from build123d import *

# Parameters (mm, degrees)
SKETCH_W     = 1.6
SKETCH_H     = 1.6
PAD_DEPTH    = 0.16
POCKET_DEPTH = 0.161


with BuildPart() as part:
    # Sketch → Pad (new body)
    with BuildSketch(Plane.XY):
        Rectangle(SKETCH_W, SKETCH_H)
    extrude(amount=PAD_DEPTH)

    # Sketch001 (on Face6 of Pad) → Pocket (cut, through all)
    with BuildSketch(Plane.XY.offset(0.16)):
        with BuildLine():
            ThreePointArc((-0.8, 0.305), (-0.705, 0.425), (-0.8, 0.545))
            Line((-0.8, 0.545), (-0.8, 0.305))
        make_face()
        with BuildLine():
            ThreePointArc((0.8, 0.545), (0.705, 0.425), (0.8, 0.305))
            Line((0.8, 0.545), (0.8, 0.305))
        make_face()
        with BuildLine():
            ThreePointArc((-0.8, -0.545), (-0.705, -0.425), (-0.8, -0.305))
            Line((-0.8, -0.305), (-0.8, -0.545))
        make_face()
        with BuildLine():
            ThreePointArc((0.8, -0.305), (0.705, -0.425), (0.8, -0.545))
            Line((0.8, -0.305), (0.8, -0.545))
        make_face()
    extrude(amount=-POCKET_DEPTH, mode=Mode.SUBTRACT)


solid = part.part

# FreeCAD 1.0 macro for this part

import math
import FreeCAD as App
import Part
import Sketcher
from FreeCAD import Vector
Q = App.Units.Quantity

doc = App.newDocument("Part")
body = doc.addObject("PartDesign::Body", "Body")

# Sketch on XY plane
sketch1 = body.newObject("Sketcher::SketchObject", "Sketch")
sketch1.AttachmentSupport = (doc.getObject("XY_Plane"), [""])
sketch1.MapMode = "FlatFace"
sketch1.addGeometry([
    Part.LineSegment(Vector(-0.8, 0.8, 0), Vector(-0.8, -0.8, 0)),
    Part.LineSegment(Vector(-0.8, -0.8, 0), Vector(0.8, -0.8, 0)),
    Part.LineSegment(Vector(0.8, -0.8, 0), Vector(0.8, 0.8, 0)),
    Part.LineSegment(Vector(0.8, 0.8, 0), Vector(-0.8, 0.8, 0)),
], False)
sketch1.addConstraint([
    Sketcher.Constraint("Coincident", 0, 2, 1, 1),
    Sketcher.Constraint("Coincident", 1, 2, 2, 1),
    Sketcher.Constraint("Coincident", 2, 2, 3, 1),
    Sketcher.Constraint("Coincident", 3, 2, 0, 1),
    Sketcher.Constraint("Vertical", 0),
    Sketcher.Constraint("Horizontal", 1),
    Sketcher.Constraint("Vertical", 2),
    Sketcher.Constraint("Horizontal", 3),
    Sketcher.Constraint("Symmetric", 0, 2, 2, 2, -1, 1),
    Sketcher.Constraint("Equal", 3, 0),
    Sketcher.Constraint("DistanceX", 1, 1, 1, 2, Q("1.6 mm")),
])
pad1 = body.newObject("PartDesign::Pad", "Pad")
pad1.Profile = sketch1
pad1.Length = 0.16

# Sketch on XY plane
sketch2 = body.newObject("Sketcher::SketchObject", "Sketch001")
sketch2.AttachmentSupport = (doc.getObject("XY_Plane"), [""])
sketch2.MapMode = "FlatFace"
sketch2.AttachmentOffset = App.Placement(Vector(0, 0, 0.16), App.Rotation())
sketch2.addGeometry([
    Part.ArcOfCircle(Part.Circle(Vector(-0.83, 0.42, 0), Vector(0, 0, 1), 0.12), math.radians(-77), math.radians(77)),  # 0
    Part.LineSegment(Vector(-0.8, 0.55, 0), Vector(-0.8, 0.3, 0)),  # 1
    Part.ArcOfCircle(Part.Circle(Vector(0.83, 0.42, 0), Vector(0, 0, 1), 0.12), math.radians(103), math.radians(257)),  # 2
    Part.LineSegment(Vector(0.8, 0.3, 0), Vector(0.8, 0.55, 0)),  # 3
    Part.ArcOfCircle(Part.Circle(Vector(-0.83, -0.42, 0), Vector(0, 0, 1), 0.12), math.radians(-77), math.radians(77)),  # 4
    Part.LineSegment(Vector(-0.8, -0.3, 0), Vector(-0.8, -0.55, 0)),  # 5
    Part.ArcOfCircle(Part.Circle(Vector(0.83, -0.42, 0), Vector(0, 0, 1), 0.12), math.radians(103), math.radians(257)),  # 6
    Part.LineSegment(Vector(0.8, -0.55, 0), Vector(0.8, -0.3, 0)),  # 7
], False)
sketch2.addConstraint([
    Sketcher.Constraint("Coincident", 0, 1, 1, 2),
    Sketcher.Constraint("Coincident", 1, 1, 0, 2),
    Sketcher.Constraint("Coincident", 2, 1, 3, 2),
    Sketcher.Constraint("Coincident", 3, 1, 2, 2),
    Sketcher.Constraint("Coincident", 4, 1, 5, 2),
    Sketcher.Constraint("Coincident", 5, 1, 4, 2),
    Sketcher.Constraint("Coincident", 6, 1, 7, 2),
    Sketcher.Constraint("Coincident", 7, 1, 6, 2),
    Sketcher.Constraint("Vertical", 1),
    Sketcher.Constraint("Vertical", 3),
    Sketcher.Constraint("Vertical", 5),
    Sketcher.Constraint("Vertical", 7),
    Sketcher.Constraint("Equal", 0, 2),
    Sketcher.Constraint("Equal", 2, 4),
    Sketcher.Constraint("Equal", 4, 6),
    Sketcher.Constraint("Symmetric", 2, 3, 4, 3, -1, 1),
    Sketcher.Constraint("Symmetric", 0, 3, 6, 3, -1, 1),
    Sketcher.Constraint("Symmetric", 0, 3, 2, 3, -2),
    Sketcher.Constraint("Horizontal", 1, 1, 2, 1),
    Sketcher.Constraint("Horizontal", 5, 1, 6, 1),
    Sketcher.Constraint("Vertical", 1, 1, 4, 1),
    Sketcher.Constraint("DistanceY", 1, 2, 1, 1, Q("0.24 mm")),
    Sketcher.Constraint("DistanceX", 0, 1, -1, 1, Q("0.8 mm")),
    Sketcher.Constraint("Radius", 0, Q("0.123289 mm")),
    Sketcher.Constraint("DistanceY", 4, 3, 0, 3, Q("0.85 mm")),
])
pocket1 = body.newObject("PartDesign::Pocket", "Pocket")
pocket1.Profile = sketch2
pocket1.Type = "ThroughAll"

doc.recompute()
